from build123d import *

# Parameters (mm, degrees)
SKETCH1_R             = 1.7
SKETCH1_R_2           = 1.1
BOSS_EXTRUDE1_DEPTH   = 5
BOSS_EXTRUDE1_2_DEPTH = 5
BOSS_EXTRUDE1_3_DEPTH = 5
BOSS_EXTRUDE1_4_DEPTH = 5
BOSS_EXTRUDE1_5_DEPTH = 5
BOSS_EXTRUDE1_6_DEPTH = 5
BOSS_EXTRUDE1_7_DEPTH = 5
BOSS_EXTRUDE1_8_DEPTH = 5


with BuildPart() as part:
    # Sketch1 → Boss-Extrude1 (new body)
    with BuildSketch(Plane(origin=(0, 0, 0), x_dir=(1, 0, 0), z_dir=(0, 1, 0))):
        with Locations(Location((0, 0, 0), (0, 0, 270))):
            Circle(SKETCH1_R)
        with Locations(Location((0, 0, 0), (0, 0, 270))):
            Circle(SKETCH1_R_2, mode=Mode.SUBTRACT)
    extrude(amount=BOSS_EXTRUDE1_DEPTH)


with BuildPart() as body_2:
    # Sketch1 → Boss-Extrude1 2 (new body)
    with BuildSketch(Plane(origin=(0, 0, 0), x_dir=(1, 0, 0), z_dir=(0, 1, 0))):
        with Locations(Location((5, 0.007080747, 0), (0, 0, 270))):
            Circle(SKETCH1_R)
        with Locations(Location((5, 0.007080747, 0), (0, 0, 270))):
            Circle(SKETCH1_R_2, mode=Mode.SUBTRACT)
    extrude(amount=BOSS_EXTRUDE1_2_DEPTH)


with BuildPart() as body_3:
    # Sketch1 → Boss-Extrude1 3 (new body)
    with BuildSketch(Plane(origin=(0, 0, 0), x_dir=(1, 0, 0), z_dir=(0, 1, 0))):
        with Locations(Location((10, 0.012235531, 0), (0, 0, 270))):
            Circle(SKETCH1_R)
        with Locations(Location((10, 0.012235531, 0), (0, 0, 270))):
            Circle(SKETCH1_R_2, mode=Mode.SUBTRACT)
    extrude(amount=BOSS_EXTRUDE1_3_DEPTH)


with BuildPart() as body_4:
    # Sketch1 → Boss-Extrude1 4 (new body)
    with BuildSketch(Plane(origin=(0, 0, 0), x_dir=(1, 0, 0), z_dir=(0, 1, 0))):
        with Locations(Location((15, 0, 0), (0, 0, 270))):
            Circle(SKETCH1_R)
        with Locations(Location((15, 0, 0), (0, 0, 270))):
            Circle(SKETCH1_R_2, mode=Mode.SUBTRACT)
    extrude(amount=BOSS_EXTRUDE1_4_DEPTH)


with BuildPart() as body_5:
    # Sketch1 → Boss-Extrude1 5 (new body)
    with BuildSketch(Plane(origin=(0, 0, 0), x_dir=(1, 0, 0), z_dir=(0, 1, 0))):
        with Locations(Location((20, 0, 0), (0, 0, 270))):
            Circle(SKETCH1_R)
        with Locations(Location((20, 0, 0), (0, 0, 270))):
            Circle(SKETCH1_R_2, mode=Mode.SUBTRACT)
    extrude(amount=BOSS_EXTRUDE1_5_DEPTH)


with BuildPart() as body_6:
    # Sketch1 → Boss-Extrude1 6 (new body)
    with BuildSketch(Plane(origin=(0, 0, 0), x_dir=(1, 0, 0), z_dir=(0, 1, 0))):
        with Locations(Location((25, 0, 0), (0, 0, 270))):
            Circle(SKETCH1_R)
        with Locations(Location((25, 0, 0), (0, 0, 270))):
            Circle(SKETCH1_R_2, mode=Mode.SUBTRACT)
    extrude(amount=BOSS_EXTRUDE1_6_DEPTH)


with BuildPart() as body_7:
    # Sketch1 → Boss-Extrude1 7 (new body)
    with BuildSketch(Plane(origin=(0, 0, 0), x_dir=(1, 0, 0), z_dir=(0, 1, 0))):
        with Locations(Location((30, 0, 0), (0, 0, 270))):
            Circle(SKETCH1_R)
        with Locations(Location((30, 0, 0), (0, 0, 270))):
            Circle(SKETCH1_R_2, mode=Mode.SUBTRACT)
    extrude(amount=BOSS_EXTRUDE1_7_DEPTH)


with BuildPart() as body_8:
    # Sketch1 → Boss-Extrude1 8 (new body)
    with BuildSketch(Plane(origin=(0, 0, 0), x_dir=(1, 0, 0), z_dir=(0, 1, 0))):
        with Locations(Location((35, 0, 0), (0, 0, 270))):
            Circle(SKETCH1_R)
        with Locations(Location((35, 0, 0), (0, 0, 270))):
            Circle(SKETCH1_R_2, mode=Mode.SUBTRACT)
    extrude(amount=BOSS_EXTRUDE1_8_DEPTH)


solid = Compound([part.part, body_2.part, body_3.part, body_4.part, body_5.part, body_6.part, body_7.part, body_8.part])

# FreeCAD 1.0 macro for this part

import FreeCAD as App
import Part
import Sketcher
from FreeCAD import Vector

doc = App.newDocument("Part")
params = doc.addObject("Spreadsheet::Sheet", "Params")
for row, (alias, value) in enumerate([
    ("sketch1_diameter", "3.4 mm"),
    ("sketch1_diameter2", "2.2 mm"),
    ("pad1_length", "5 mm"),
    ("sketch2_diameter", "3.4 mm"),
    ("sketch2_diameter2", "2.2 mm"),
    ("pad2_length", "5 mm"),
    ("sketch3_diameter", "3.4 mm"),
    ("sketch3_diameter2", "2.2 mm"),
    ("pad3_length", "5 mm"),
    ("sketch4_diameter", "3.4 mm"),
    ("sketch4_diameter2", "2.2 mm"),
    ("pad4_length", "5 mm"),
    ("sketch5_diameter", "3.4 mm"),
    ("sketch5_diameter2", "2.2 mm"),
    ("pad5_length", "5 mm"),
    ("sketch6_diameter", "3.4 mm"),
    ("sketch6_diameter2", "2.2 mm"),
    ("pad6_length", "5 mm"),
    ("sketch7_diameter", "3.4 mm"),
    ("sketch7_diameter2", "2.2 mm"),
    ("pad7_length", "5 mm"),
    ("sketch8_diameter", "3.4 mm"),
    ("sketch8_diameter2", "2.2 mm"),
    ("pad8_length", "5 mm"),
], start=1):
    params.set(f"A{row}", alias)
    params.set(f"B{row}", "=" + value)
    params.setAlias(f"B{row}", alias)

body = doc.addObject("PartDesign::Body", "Body")

# Sketch on XZ plane
sketch1 = doc.addObject("Sketcher::SketchObject", "Sketch")
body.addObject(sketch1)
sketch1.AttachmentSupport = (doc.XZ_Plane, [""])
sketch1.MapMode = "FlatFace"
sketch1.addGeometry([
    Part.Circle(Vector(0, 0, 0), Vector(0, 0, 1), 1.7),
    Part.Circle(Vector(0, 0, 0), Vector(0, 0, 1), 1.1),
], False)
sketch1.addConstraint([
    Sketcher.Constraint("Coincident", 0, 3, -1, 1),
    Sketcher.Constraint("Coincident", 1, 3, -1, 1),
    Sketcher.Constraint("Diameter", 0, 3.4),
    Sketcher.Constraint("Diameter", 1, 2.2),
])
sketch1.setExpression("Constraints[2]", "Params.sketch1_diameter")
sketch1.setExpression("Constraints[3]", "Params.sketch1_diameter2")
pad1 = doc.addObject("PartDesign::Pad", "Pad")
body.addObject(pad1)
pad1.Profile = sketch1
pad1.setExpression("Length", "Params.pad1_length")
pad1.Reversed = True
body2 = doc.addObject("PartDesign::Body", "Body001")

# Sketch on XZ plane
sketch2 = doc.addObject("Sketcher::SketchObject", "Sketch001")
body2.addObject(sketch2)
sketch2.AttachmentSupport = (doc.getObject("XZ_Plane001"), [""])
sketch2.MapMode = "FlatFace"
sketch2.addGeometry([
    Part.Circle(Vector(5, 0, 0), Vector(0, 0, 1), 1.7),
    Part.Circle(Vector(5, 0, 0), Vector(0, 0, 1), 1.1),
], False)
sketch2.addConstraint([
    Sketcher.Constraint("Coincident", 1, 3, 0, 3),
    Sketcher.Constraint("Diameter", 0, 3.4),
    Sketcher.Constraint("Diameter", 1, 2.2),
    Sketcher.Constraint("DistanceX", -1, 1, 0, 3, 5.0),
    Sketcher.Constraint("DistanceY", 0, 3, -1, 1, 0.007081),
])
sketch2.setExpression("Constraints[1]", "Params.sketch2_diameter")
sketch2.setExpression("Constraints[2]", "Params.sketch2_diameter2")
pad2 = doc.addObject("PartDesign::Pad", "Pad001")
body2.addObject(pad2)
pad2.Profile = sketch2
pad2.setExpression("Length", "Params.pad2_length")
pad2.Reversed = True
body3 = doc.addObject("PartDesign::Body", "Body002")

# Sketch on XZ plane
sketch3 = doc.addObject("Sketcher::SketchObject", "Sketch002")
body3.addObject(sketch3)
sketch3.AttachmentSupport = (doc.getObject("XZ_Plane002"), [""])
sketch3.MapMode = "FlatFace"
sketch3.addGeometry([
    Part.Circle(Vector(10, 0, 0), Vector(0, 0, 1), 1.7),
    Part.Circle(Vector(10, 0, 0), Vector(0, 0, 1), 1.1),
], False)
sketch3.addConstraint([
    Sketcher.Constraint("Coincident", 1, 3, 0, 3),
    Sketcher.Constraint("Diameter", 0, 3.4),
    Sketcher.Constraint("Diameter", 1, 2.2),
    Sketcher.Constraint("DistanceX", -1, 1, 0, 3, 10.0),
    Sketcher.Constraint("DistanceY", 0, 3, -1, 1, 0.012236),
])
sketch3.setExpression("Constraints[1]", "Params.sketch3_diameter")
sketch3.setExpression("Constraints[2]", "Params.sketch3_diameter2")
pad3 = doc.addObject("PartDesign::Pad", "Pad002")
body3.addObject(pad3)
pad3.Profile = sketch3
pad3.setExpression("Length", "Params.pad3_length")
pad3.Reversed = True
body4 = doc.addObject("PartDesign::Body", "Body003")

# Sketch on XZ plane
sketch4 = doc.addObject("Sketcher::SketchObject", "Sketch003")
body4.addObject(sketch4)
sketch4.AttachmentSupport = (doc.getObject("XZ_Plane003"), [""])
sketch4.MapMode = "FlatFace"
sketch4.addGeometry([
    Part.Circle(Vector(15, 0, 0), Vector(0, 0, 1), 1.7),
    Part.Circle(Vector(15, 0, 0), Vector(0, 0, 1), 1.1),
], False)
sketch4.addConstraint([
    Sketcher.Constraint("Coincident", 1, 3, 0, 3),
    Sketcher.Constraint("PointOnObject", 0, 3, -1),
    Sketcher.Constraint("Diameter", 0, 3.4),
    Sketcher.Constraint("Diameter", 1, 2.2),
    Sketcher.Constraint("DistanceX", -1, 1, 0, 3, 15.0),
])
sketch4.setExpression("Constraints[2]", "Params.sketch4_diameter")
sketch4.setExpression("Constraints[3]", "Params.sketch4_diameter2")
pad4 = doc.addObject("PartDesign::Pad", "Pad003")
body4.addObject(pad4)
pad4.Profile = sketch4
pad4.setExpression("Length", "Params.pad4_length")
pad4.Reversed = True
body5 = doc.addObject("PartDesign::Body", "Body004")

# Sketch on XZ plane
sketch5 = doc.addObject("Sketcher::SketchObject", "Sketch004")
body5.addObject(sketch5)
sketch5.AttachmentSupport = (doc.getObject("XZ_Plane004"), [""])
sketch5.MapMode = "FlatFace"
sketch5.addGeometry([
    Part.Circle(Vector(20, 0, 0), Vector(0, 0, 1), 1.7),
    Part.Circle(Vector(20, 0, 0), Vector(0, 0, 1), 1.1),
], False)
sketch5.addConstraint([
    Sketcher.Constraint("Coincident", 1, 3, 0, 3),
    Sketcher.Constraint("PointOnObject", 0, 3, -1),
    Sketcher.Constraint("Diameter", 0, 3.4),
    Sketcher.Constraint("Diameter", 1, 2.2),
    Sketcher.Constraint("DistanceX", -1, 1, 0, 3, 20.0),
])
sketch5.setExpression("Constraints[2]", "Params.sketch5_diameter")
sketch5.setExpression("Constraints[3]", "Params.sketch5_diameter2")
pad5 = doc.addObject("PartDesign::Pad", "Pad004")
body5.addObject(pad5)
pad5.Profile = sketch5
pad5.setExpression("Length", "Params.pad5_length")
pad5.Reversed = True
body6 = doc.addObject("PartDesign::Body", "Body005")

# Sketch on XZ plane
sketch6 = doc.addObject("Sketcher::SketchObject", "Sketch005")
body6.addObject(sketch6)
sketch6.AttachmentSupport = (doc.getObject("XZ_Plane005"), [""])
sketch6.MapMode = "FlatFace"
sketch6.addGeometry([
    Part.Circle(Vector(25, 0, 0), Vector(0, 0, 1), 1.7),
    Part.Circle(Vector(25, 0, 0), Vector(0, 0, 1), 1.1),
], False)
sketch6.addConstraint([
    Sketcher.Constraint("Coincident", 1, 3, 0, 3),
    Sketcher.Constraint("PointOnObject", 0, 3, -1),
    Sketcher.Constraint("Diameter", 0, 3.4),
    Sketcher.Constraint("Diameter", 1, 2.2),
    Sketcher.Constraint("DistanceX", -1, 1, 0, 3, 25.0),
])
sketch6.setExpression("Constraints[2]", "Params.sketch6_diameter")
sketch6.setExpression("Constraints[3]", "Params.sketch6_diameter2")
pad6 = doc.addObject("PartDesign::Pad", "Pad005")
body6.addObject(pad6)
pad6.Profile = sketch6
pad6.setExpression("Length", "Params.pad6_length")
pad6.Reversed = True
body7 = doc.addObject("PartDesign::Body", "Body006")

# Sketch on XZ plane
sketch7 = doc.addObject("Sketcher::SketchObject", "Sketch006")
body7.addObject(sketch7)
sketch7.AttachmentSupport = (doc.getObject("XZ_Plane006"), [""])
sketch7.MapMode = "FlatFace"
sketch7.addGeometry([
    Part.Circle(Vector(30, 0, 0), Vector(0, 0, 1), 1.7),
    Part.Circle(Vector(30, 0, 0), Vector(0, 0, 1), 1.1),
], False)
sketch7.addConstraint([
    Sketcher.Constraint("Coincident", 1, 3, 0, 3),
    Sketcher.Constraint("PointOnObject", 0, 3, -1),
    Sketcher.Constraint("Diameter", 0, 3.4),
    Sketcher.Constraint("Diameter", 1, 2.2),
    Sketcher.Constraint("DistanceX", -1, 1, 0, 3, 30.0),
])
sketch7.setExpression("Constraints[2]", "Params.sketch7_diameter")
sketch7.setExpression("Constraints[3]", "Params.sketch7_diameter2")
pad7 = doc.addObject("PartDesign::Pad", "Pad006")
body7.addObject(pad7)
pad7.Profile = sketch7
pad7.setExpression("Length", "Params.pad7_length")
pad7.Reversed = True
body8 = doc.addObject("PartDesign::Body", "Body007")

# Sketch on XZ plane
sketch8 = doc.addObject("Sketcher::SketchObject", "Sketch007")
body8.addObject(sketch8)
sketch8.AttachmentSupport = (doc.getObject("XZ_Plane007"), [""])
sketch8.MapMode = "FlatFace"
sketch8.addGeometry([
    Part.Circle(Vector(35, 0, 0), Vector(0, 0, 1), 1.7),
    Part.Circle(Vector(35, 0, 0), Vector(0, 0, 1), 1.1),
], False)
sketch8.addConstraint([
    Sketcher.Constraint("Coincident", 1, 3, 0, 3),
    Sketcher.Constraint("PointOnObject", 0, 3, -1),
    Sketcher.Constraint("Diameter", 0, 3.4),
    Sketcher.Constraint("Diameter", 1, 2.2),
    Sketcher.Constraint("DistanceX", -1, 1, 0, 3, 35.0),
])
sketch8.setExpression("Constraints[2]", "Params.sketch8_diameter")
sketch8.setExpression("Constraints[3]", "Params.sketch8_diameter2")
pad8 = doc.addObject("PartDesign::Pad", "Pad007")
body8.addObject(pad8)
pad8.Profile = sketch8
pad8.setExpression("Length", "Params.pad8_length")
pad8.Reversed = True

doc.recompute()
